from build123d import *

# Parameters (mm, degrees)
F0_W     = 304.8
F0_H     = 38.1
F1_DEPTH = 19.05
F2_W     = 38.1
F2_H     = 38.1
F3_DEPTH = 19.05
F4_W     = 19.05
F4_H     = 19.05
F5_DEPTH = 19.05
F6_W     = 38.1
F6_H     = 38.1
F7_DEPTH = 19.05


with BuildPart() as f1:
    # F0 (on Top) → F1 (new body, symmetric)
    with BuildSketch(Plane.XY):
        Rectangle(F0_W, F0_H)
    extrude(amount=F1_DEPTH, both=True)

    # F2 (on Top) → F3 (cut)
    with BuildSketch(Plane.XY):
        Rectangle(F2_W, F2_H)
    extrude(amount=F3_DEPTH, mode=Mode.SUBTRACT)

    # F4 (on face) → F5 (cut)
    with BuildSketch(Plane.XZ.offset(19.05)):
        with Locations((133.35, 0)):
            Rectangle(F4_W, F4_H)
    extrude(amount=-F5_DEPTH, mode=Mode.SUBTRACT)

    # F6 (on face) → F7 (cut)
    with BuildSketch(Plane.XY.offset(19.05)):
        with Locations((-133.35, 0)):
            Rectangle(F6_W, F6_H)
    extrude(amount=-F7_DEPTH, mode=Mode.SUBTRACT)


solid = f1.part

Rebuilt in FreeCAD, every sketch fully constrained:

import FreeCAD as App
import Part
import Sketcher
Q = App.Units.Quantity


def add_polygon(sketch, points):
    """Adds a closed chain of lines whose ends are joined by coincident constraints."""
    first, n = sketch.GeometryCount, len(points)
    for a, b in zip(points, points[1:] + points[:1]):
        sketch.addGeometry(Part.LineSegment(App.Vector(*a, 0), App.Vector(*b, 0)), False)
    for i in range(n):
        sketch.addConstraint(Sketcher.Constraint("Coincident", first + i, 2, first + (i + 1) % n, 1))

doc = App.newDocument("Part")
body = doc.addObject("PartDesign::Body", "Body")

sketch1 = doc.addObject("Sketcher::SketchObject", "Sketch")
body.addObject(sketch1)
sketch1.AttachmentSupport = (doc.XY_Plane, [""])
sketch1.MapMode = "FlatFace"
add_polygon(sketch1, [(-152.4, 19.05), (-152.4, -19.05), (152.4, -19.05), (152.4, 19.05)])
sketch1.addConstraint(Sketcher.Constraint("Vertical", 0))
sketch1.addConstraint(Sketcher.Constraint("Horizontal", 1))
sketch1.addConstraint(Sketcher.Constraint("Vertical", 2))
sketch1.addConstraint(Sketcher.Constraint("Horizontal", 3))
sketch1.addConstraint(Sketcher.Constraint("Symmetric", 0, 2, 2, 2, -1, 1))
sketch1.addConstraint(Sketcher.Constraint("DistanceX", 1, 1, 1, 2, Q("12 in")))
sketch1.addConstraint(Sketcher.Constraint("DistanceY", 0, 2, 0, 1, Q("1.5 in")))
pad1 = doc.addObject("PartDesign::Pad", "Pad")
body.addObject(pad1)
pad1.Profile = sketch1
pad1.Length = Q("1.5 in")
pad1.Midplane = True

sketch2 = doc.addObject("Sketcher::SketchObject", "Sketch001")
body.addObject(sketch2)
sketch2.AttachmentSupport = (doc.XY_Plane, [""])
sketch2.MapMode = "FlatFace"
add_polygon(sketch2, [(-19.05, 19.05), (-19.05, -19.05), (19.05, -19.05), (19.05, 19.05)])
sketch2.addConstraint(Sketcher.Constraint("Vertical", 0))
sketch2.addConstraint(Sketcher.Constraint("Horizontal", 1))
sketch2.addConstraint(Sketcher.Constraint("Vertical", 2))
sketch2.addConstraint(Sketcher.Constraint("Horizontal", 3))
sketch2.addConstraint(Sketcher.Constraint("Symmetric", 0, 2, 2, 2, -1, 1))
sketch2.addConstraint(Sketcher.Constraint("Equal", 3, 0))
sketch2.addConstraint(Sketcher.Constraint("DistanceX", 1, 1, 1, 2, Q("1.5 in")))
pocket1 = doc.addObject("PartDesign::Pocket", "Pocket")
body.addObject(pocket1)
pocket1.Profile = sketch2
pocket1.Length = Q("0.75 in")
pocket1.Reversed = True

sketch3 = doc.addObject("Sketcher::SketchObject", "Sketch002")
body.addObject(sketch3)
sketch3.AttachmentSupport = (doc.XZ_Plane, [""])
sketch3.MapMode = "FlatFace"
sketch3.AttachmentOffset = App.Placement(App.Vector(0, 0, 0.75 * 25.4), App.Rotation())
add_polygon(sketch3, [(123.825, 9.525), (123.825, -9.525), (142.875, -9.525), (142.875, 9.525)])
sketch3.addConstraint(Sketcher.Constraint("Vertical", 0))
sketch3.addConstraint(Sketcher.Constraint("Horizontal", 1))
sketch3.addConstraint(Sketcher.Constraint("Vertical", 2))
sketch3.addConstraint(Sketcher.Constraint("Horizontal", 3))
sketch3.addConstraint(Sketcher.Constraint("Equal", 3, 0))
sketch3.addConstraint(Sketcher.Constraint("DistanceX", 1, 1, 1, 2, Q("0.75 in")))
sketch3.addConstraint(Sketcher.Constraint("DistanceX", -1, 1, 0, 2, Q("4.875 in")))
sketch3.addConstraint(Sketcher.Constraint("DistanceY", 0, 2, -1, 1, Q("0.375 in")))
pocket2 = doc.addObject("PartDesign::Pocket", "Pocket001")
body.addObject(pocket2)
pocket2.Profile = sketch3
pocket2.Length = Q("0.75 in")

sketch4 = doc.addObject("Sketcher::SketchObject", "Sketch003")
body.addObject(sketch4)
sketch4.AttachmentSupport = (doc.XY_Plane, [""])
sketch4.MapMode = "FlatFace"
sketch4.AttachmentOffset = App.Placement(App.Vector(0, 0, 0.75 * 25.4), App.Rotation())
add_polygon(sketch4, [(-152.4, 19.05), (-152.4, -19.05), (-114.3, -19.05), (-114.3, 19.05)])
sketch4.addConstraint(Sketcher.Constraint("Vertical", 0))
sketch4.addConstraint(Sketcher.Constraint("Horizontal", 1))
sketch4.addConstraint(Sketcher.Constraint("Vertical", 2))
sketch4.addConstraint(Sketcher.Constraint("Horizontal", 3))
sketch4.addConstraint(Sketcher.Constraint("Equal", 3, 0))
sketch4.addConstraint(Sketcher.Constraint("DistanceX", 1, 1, 1, 2, Q("1.5 in")))
sketch4.addConstraint(Sketcher.Constraint("DistanceX", 0, 2, -1, 1, Q("6 in")))
sketch4.addConstraint(Sketcher.Constraint("DistanceY", 0, 2, -1, 1, Q("0.75 in")))
pocket3 = doc.addObject("PartDesign::Pocket", "Pocket002")
body.addObject(pocket3)
pocket3.Profile = sketch4
pocket3.Length = Q("0.75 in")

doc.recompute()
